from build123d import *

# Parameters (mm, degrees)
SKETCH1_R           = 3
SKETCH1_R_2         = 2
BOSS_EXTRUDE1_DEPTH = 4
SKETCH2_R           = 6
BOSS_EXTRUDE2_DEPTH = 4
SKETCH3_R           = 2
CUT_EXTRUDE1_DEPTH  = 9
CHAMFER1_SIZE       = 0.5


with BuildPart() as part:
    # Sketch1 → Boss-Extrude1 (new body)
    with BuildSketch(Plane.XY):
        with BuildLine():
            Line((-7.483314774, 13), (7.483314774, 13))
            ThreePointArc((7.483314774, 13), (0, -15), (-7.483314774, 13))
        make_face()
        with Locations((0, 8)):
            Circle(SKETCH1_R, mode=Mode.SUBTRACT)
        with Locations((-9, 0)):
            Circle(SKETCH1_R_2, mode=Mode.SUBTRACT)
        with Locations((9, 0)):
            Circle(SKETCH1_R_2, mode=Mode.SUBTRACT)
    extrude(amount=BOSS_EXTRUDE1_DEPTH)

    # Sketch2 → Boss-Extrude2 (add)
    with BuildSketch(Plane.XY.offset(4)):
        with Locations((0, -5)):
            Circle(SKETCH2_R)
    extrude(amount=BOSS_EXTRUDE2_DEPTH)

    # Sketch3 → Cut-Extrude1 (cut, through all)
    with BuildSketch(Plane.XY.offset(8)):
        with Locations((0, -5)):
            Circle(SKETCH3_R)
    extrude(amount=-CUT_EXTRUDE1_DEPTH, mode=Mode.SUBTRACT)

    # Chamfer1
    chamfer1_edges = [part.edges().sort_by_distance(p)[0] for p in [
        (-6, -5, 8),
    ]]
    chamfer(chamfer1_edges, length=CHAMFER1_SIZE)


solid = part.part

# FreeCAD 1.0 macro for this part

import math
import FreeCAD as App
import Part
import Sketcher
from FreeCAD import Vector


def edges_at(feature, points):
    """Names of the edges that pass closest to the given points."""
    edges = feature.Shape.Edges
    near = lambda p: min(range(len(edges)), key=lambda i: edges[i].distToShape(Part.Vertex(*p))[0])
    return sorted({f"Edge{near(p) + 1}" for p in points})

doc = App.newDocument("Part")
body = doc.addObject("PartDesign::Body", "Body")

# Sketch on XY plane
sketch1 = body.newObject("Sketcher::SketchObject", "Sketch")
sketch1.AttachmentSupport = (doc.getObject("XY_Plane"), [""])
sketch1.MapMode = "FlatFace"
sketch1.addGeometry(Part.LineSegment(Vector(7.483315, 13, 0), Vector(-7.483315, 13, 0)), False)
sketch1.addGeometry(Part.ArcOfCircle(Part.Circle(Vector(0, 0, 0), Vector(0, 0, 1), 15), math.radians(119.926435), math.radians(420.073565)), False)
sketch1.addGeometry(Part.Circle(Vector(9, 0, 0), Vector(0, 0, 1), 2), False)
sketch1.addGeometry(Part.Circle(Vector(-9, 0, 0), Vector(0, 0, 1), 2), False)
sketch1.addGeometry(Part.Circle(Vector(0, 8, 0), Vector(0, 0, 1), 3), False)
sketch1.addConstraint(Sketcher.Constraint("Coincident", 0, 1, 1, 2))
sketch1.addConstraint(Sketcher.Constraint("Coincident", 1, 1, 0, 2))
sketch1.addConstraint(Sketcher.Constraint("Horizontal", 0))
sketch1.addConstraint(Sketcher.Constraint("Coincident", 1, 3, -1, 1))
sketch1.addConstraint(Sketcher.Constraint("Equal", 2, 3))
sketch1.addConstraint(Sketcher.Constraint("Symmetric", 2, 3, 3, 3, -1, 1))
sketch1.addConstraint(Sketcher.Constraint("PointOnObject", 2, 3, -1))
sketch1.addConstraint(Sketcher.Constraint("PointOnObject", 4, 3, -2))
sketch1.addConstraint(Sketcher.Constraint("Diameter", 2, 4.0))
sketch1.addConstraint(Sketcher.Constraint("Diameter", 4, 6.0))
sketch1.addConstraint(Sketcher.Constraint("Radius", 1, 15.0))
sketch1.addConstraint(Sketcher.Constraint("DistanceX", -1, 1, 2, 3, 9.0))
sketch1.addConstraint(Sketcher.Constraint("DistanceY", -1, 1, 4, 3, 8.0))
sketch1.addConstraint(Sketcher.Constraint("DistanceY", -1, 1, 0, 1, 13.0))
pad1 = body.newObject("PartDesign::Pad", "Pad")
pad1.Profile = sketch1
pad1.Length = 4

# Sketch on XY plane
sketch2 = body.newObject("Sketcher::SketchObject", "Sketch001")
sketch2.AttachmentSupport = (doc.getObject("XY_Plane"), [""])
sketch2.MapMode = "FlatFace"
sketch2.AttachmentOffset = App.Placement(Vector(0, 0, 4), App.Rotation())
sketch2.addGeometry(Part.Circle(Vector(0, -5, 0), Vector(0, 0, 1), 6), False)
sketch2.addConstraint(Sketcher.Constraint("PointOnObject", 0, 3, -2))
sketch2.addConstraint(Sketcher.Constraint("Diameter", 0, 12.0))
sketch2.addConstraint(Sketcher.Constraint("DistanceY", 0, 3, -1, 1, 5.0))
pad2 = body.newObject("PartDesign::Pad", "Pad001")
pad2.Profile = sketch2
pad2.Length = 4

# Sketch on XY plane
sketch3 = body.newObject("Sketcher::SketchObject", "Sketch002")
sketch3.AttachmentSupport = (doc.getObject("XY_Plane"), [""])
sketch3.MapMode = "FlatFace"
sketch3.AttachmentOffset = App.Placement(Vector(0, 0, 8), App.Rotation())
sketch3.addGeometry(Part.Circle(Vector(0, -5, 0), Vector(0, 0, 1), 2), False)
sketch3.addConstraint(Sketcher.Constraint("PointOnObject", 0, 3, -2))
sketch3.addConstraint(Sketcher.Constraint("Diameter", 0, 4.0))
sketch3.addConstraint(Sketcher.Constraint("DistanceY", 0, 3, -1, 1, 5.0))
pocket1 = body.newObject("PartDesign::Pocket", "Pocket")
pocket1.Profile = sketch3
pocket1.Type = "ThroughAll"
doc.recompute()

chamfer = body.newObject("PartDesign::Chamfer", "Chamfer")
chamfer.Base = (pocket1, edges_at(pocket1, [(-6, -5, 8)]))
chamfer.Size = 0.5

doc.recompute()
